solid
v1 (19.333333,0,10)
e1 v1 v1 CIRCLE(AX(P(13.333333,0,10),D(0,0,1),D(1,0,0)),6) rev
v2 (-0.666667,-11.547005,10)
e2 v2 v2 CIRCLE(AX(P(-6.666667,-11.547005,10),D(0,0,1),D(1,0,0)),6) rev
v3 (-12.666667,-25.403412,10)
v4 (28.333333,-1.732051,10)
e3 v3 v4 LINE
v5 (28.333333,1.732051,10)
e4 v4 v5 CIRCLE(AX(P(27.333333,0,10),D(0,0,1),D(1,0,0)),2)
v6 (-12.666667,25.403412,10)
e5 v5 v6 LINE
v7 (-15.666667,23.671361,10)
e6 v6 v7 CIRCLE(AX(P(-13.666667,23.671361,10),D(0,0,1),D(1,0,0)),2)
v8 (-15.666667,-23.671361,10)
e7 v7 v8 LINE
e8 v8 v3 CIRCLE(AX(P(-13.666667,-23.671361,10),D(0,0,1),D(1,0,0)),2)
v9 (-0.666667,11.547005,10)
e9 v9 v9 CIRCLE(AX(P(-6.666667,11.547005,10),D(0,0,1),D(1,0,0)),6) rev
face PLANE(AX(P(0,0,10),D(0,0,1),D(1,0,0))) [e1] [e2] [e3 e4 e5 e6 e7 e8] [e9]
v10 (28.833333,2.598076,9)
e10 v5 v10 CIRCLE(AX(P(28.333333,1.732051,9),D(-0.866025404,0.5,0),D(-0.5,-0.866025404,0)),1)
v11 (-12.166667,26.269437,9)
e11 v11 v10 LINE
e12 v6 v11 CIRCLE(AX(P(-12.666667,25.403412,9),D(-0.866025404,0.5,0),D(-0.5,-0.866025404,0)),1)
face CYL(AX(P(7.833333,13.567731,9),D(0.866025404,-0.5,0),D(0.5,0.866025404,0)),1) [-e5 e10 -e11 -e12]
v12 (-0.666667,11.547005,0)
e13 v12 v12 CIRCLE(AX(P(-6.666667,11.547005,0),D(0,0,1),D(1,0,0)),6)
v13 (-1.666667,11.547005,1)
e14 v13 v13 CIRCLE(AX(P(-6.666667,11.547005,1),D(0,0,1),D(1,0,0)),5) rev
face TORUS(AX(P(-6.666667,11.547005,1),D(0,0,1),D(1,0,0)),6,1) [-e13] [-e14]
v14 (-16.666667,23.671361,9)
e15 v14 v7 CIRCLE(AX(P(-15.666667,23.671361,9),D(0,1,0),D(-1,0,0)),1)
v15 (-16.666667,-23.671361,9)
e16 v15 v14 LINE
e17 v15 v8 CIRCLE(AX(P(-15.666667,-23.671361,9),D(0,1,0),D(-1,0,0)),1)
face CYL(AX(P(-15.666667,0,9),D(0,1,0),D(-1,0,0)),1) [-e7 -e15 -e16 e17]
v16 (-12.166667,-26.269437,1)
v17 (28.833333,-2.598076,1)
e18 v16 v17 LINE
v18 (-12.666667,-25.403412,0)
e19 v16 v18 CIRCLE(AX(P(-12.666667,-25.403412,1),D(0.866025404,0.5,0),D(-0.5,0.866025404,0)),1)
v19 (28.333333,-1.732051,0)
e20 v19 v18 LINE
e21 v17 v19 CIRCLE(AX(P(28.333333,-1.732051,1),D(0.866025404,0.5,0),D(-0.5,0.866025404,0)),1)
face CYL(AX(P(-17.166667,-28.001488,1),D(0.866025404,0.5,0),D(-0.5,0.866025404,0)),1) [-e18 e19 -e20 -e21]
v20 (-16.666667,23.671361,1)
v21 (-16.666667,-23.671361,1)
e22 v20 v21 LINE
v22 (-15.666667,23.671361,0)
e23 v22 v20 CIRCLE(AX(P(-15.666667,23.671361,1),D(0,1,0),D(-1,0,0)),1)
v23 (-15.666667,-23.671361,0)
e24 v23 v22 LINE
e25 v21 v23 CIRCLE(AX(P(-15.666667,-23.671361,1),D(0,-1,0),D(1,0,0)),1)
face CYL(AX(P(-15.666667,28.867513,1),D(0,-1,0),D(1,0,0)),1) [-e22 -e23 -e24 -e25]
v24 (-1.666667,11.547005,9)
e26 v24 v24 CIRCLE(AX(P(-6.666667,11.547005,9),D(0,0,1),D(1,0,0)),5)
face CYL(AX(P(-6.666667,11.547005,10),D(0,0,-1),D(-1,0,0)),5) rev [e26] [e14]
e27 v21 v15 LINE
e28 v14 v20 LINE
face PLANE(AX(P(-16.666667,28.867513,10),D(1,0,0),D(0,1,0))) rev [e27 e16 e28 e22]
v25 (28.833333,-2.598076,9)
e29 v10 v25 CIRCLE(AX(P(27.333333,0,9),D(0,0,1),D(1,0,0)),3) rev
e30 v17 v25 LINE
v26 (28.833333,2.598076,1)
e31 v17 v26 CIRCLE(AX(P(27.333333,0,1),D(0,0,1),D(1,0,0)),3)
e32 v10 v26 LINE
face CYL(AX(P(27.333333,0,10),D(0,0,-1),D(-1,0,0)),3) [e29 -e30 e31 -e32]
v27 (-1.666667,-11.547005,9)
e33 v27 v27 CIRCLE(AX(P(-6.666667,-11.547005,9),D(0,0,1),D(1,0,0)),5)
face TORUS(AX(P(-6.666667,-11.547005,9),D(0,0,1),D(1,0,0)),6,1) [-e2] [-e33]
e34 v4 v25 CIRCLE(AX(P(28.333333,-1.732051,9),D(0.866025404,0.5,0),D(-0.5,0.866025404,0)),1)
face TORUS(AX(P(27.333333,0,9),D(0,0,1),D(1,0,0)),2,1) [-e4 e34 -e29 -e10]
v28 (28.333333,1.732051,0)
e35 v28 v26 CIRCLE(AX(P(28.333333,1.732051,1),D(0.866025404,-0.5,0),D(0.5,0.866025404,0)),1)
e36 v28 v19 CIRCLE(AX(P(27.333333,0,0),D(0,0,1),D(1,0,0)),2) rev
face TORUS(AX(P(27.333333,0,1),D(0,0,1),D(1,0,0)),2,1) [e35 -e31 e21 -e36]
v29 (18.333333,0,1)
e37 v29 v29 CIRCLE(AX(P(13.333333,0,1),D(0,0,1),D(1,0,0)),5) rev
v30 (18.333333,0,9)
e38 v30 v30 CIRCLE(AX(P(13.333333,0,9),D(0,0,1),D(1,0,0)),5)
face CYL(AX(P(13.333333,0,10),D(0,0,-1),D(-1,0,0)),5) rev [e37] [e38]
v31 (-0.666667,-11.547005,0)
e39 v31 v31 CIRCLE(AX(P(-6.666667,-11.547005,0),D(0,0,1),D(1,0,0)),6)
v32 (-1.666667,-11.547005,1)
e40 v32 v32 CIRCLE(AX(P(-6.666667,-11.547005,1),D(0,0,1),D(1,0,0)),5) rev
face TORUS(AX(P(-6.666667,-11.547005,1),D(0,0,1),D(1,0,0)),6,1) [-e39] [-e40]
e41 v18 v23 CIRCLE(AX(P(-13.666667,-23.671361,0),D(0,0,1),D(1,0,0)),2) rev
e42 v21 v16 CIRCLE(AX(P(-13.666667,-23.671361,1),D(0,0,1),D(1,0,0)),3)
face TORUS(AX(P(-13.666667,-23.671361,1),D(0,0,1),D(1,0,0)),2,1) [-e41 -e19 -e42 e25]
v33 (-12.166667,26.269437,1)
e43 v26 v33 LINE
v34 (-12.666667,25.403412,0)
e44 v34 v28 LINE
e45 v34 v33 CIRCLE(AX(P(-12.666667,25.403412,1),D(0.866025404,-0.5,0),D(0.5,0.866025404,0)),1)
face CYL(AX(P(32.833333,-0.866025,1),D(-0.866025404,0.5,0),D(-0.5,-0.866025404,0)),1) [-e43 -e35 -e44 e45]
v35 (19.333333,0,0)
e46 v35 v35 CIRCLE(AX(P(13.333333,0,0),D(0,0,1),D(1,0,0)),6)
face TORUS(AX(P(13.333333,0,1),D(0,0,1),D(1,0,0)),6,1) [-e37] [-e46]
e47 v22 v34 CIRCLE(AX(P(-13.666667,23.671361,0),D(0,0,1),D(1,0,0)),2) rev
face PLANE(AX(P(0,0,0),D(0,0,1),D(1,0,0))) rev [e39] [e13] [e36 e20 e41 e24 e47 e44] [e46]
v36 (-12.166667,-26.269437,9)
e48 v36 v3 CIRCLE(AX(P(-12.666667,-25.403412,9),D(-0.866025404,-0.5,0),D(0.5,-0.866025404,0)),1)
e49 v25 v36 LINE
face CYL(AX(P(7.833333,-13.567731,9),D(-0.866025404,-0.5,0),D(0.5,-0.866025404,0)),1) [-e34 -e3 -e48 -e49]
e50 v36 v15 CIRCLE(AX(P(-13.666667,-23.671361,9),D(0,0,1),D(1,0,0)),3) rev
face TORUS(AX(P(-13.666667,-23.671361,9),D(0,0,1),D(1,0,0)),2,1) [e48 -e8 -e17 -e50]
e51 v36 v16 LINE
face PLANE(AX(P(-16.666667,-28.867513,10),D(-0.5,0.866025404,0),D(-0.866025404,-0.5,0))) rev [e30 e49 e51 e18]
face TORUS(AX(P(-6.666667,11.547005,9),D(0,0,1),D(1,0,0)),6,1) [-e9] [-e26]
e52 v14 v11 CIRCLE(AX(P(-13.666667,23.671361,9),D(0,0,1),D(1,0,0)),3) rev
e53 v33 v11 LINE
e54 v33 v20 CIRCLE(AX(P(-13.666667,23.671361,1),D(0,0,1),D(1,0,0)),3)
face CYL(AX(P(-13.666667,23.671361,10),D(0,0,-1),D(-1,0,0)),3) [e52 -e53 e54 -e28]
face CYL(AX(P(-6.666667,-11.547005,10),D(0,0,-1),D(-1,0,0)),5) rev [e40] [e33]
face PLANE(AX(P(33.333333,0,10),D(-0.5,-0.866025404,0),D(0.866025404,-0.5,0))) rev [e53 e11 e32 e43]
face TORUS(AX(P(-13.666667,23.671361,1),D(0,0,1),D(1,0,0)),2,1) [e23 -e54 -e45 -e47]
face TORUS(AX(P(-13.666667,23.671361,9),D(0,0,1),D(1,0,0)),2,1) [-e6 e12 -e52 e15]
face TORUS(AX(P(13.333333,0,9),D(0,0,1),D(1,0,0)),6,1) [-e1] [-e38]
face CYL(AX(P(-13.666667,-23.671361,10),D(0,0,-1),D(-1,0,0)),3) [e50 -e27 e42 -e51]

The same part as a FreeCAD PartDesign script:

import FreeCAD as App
import Part
import Sketcher
Q = App.Units.Quantity


def edges_at(feature, points):
    """Names of the edges that pass closest to the given points."""
    edges = feature.Shape.Edges
    near = lambda p: min(range(len(edges)), key=lambda i: edges[i].distToShape(Part.Vertex(*p))[0])
    return sorted({f"Edge{near(p) + 1}" for p in points})


def add_polygon(sketch, points):
    """Adds a closed chain of lines whose ends are joined by coincident constraints."""
    first, n = sketch.GeometryCount, len(points)
    for a, b in zip(points, points[1:] + points[:1]):
        sketch.addGeometry(Part.LineSegment(App.Vector(*a, 0), App.Vector(*b, 0)), False)
    for i in range(n):
        sketch.addConstraint(Sketcher.Constraint("Coincident", first + i, 2, first + (i + 1) % n, 1))

doc = App.newDocument("Part")
body = doc.addObject("PartDesign::Body", "Body")

sketch1 = body.newObject("Sketcher::SketchObject", "Sketch")
sketch1.AttachmentSupport = (doc.getObject("XY_Plane"), [""])
sketch1.MapMode = "FlatFace"
add_polygon(sketch1, [(33, 0), (-17, 29), (-17, -29)])
sketch1.addConstraint([
    Sketcher.Constraint("Vertical", 1),
    Sketcher.Constraint("PointOnObject", 2, 2, -1),
    Sketcher.Constraint("Equal", 0, 2),
    Sketcher.Constraint("Angle", 0, Q("150 deg")),
    Sketcher.Constraint("DistanceX", 0, 2, 2, 2, 50.0),
    Sketcher.Constraint("DistanceX", 0, 2, -1, 1, 16.666667),
])
pad1 = body.newObject("PartDesign::Pad", "Pad")
pad1.Profile = sketch1
pad1.Length = 10

sketch2 = body.newObject("Sketcher::SketchObject", "Sketch001")
sketch2.AttachmentSupport = (doc.getObject("XY_Plane"), [""])
sketch2.MapMode = "FlatFace"
sketch2.addGeometry([
    Part.Circle(App.Vector(-7, 12, 0), App.Vector(0, 0, 1), 5),
    Part.Circle(App.Vector(-7, -12, 0), App.Vector(0, 0, 1), 5),
    Part.Circle(App.Vector(13, 0, 0), App.Vector(0, 0, 1), 5),
], False)
sketch2.addConstraint([
    Sketcher.Constraint("Equal", 0, 1),
    Sketcher.Constraint("Equal", 1, 2),
    Sketcher.Constraint("Symmetric", 0, 3, 1, 3, -1),
    Sketcher.Constraint("PointOnObject", 2, 3, -1),
    Sketcher.Constraint("Diameter", 0, 10.0),
    Sketcher.Constraint("DistanceX", 0, 3, 2, 3, 20.0),
    Sketcher.Constraint("DistanceY", 1, 3, 0, 3, 23.094011),
    Sketcher.Constraint("DistanceX", 0, 3, -1, 1, 6.666667),
])
pocket1 = body.newObject("PartDesign::Pocket", "Pocket")
pocket1.Profile = sketch2
pocket1.Length = 10
pocket1.Reversed = True
doc.recompute()

fillet = body.newObject("PartDesign::Fillet", "Fillet")
fillet.Base = (pocket1, edges_at(pocket1, [(-16.667, -28.868, 5), (-16.667, 28.868, 5), (33.333, 0, 5)]))
fillet.Radius = 3
doc.recompute()

fillet2 = body.newObject("PartDesign::Fillet", "Fillet001")
fillet2.Base = (fillet, edges_at(fillet, [
    (-1.667, 11.547, 10),
    (-1.667, 11.547, 0),
    (-1.667, -11.547, 10),
    (-1.667, -11.547, 0),
    (18.333, 0, 10),
    (18.333, 0, 0),
    (-16.667, 0, 0),
    (-16.667, 0, 10),
    (8.333, -14.434, 0),
    (8.333, 14.434, 0),
    (-15.167, -26.269, 0),
    (30.333, 0, 0),
    (-15.167, 26.269, 0),
    (8.333, 14.434, 10),
    (8.333, -14.434, 10),
    (-15.167, -26.269, 10),
    (30.333, 0, 10),
    (-15.167, 26.269, 10),
]))
fillet2.Radius = 1

doc.recompute()
